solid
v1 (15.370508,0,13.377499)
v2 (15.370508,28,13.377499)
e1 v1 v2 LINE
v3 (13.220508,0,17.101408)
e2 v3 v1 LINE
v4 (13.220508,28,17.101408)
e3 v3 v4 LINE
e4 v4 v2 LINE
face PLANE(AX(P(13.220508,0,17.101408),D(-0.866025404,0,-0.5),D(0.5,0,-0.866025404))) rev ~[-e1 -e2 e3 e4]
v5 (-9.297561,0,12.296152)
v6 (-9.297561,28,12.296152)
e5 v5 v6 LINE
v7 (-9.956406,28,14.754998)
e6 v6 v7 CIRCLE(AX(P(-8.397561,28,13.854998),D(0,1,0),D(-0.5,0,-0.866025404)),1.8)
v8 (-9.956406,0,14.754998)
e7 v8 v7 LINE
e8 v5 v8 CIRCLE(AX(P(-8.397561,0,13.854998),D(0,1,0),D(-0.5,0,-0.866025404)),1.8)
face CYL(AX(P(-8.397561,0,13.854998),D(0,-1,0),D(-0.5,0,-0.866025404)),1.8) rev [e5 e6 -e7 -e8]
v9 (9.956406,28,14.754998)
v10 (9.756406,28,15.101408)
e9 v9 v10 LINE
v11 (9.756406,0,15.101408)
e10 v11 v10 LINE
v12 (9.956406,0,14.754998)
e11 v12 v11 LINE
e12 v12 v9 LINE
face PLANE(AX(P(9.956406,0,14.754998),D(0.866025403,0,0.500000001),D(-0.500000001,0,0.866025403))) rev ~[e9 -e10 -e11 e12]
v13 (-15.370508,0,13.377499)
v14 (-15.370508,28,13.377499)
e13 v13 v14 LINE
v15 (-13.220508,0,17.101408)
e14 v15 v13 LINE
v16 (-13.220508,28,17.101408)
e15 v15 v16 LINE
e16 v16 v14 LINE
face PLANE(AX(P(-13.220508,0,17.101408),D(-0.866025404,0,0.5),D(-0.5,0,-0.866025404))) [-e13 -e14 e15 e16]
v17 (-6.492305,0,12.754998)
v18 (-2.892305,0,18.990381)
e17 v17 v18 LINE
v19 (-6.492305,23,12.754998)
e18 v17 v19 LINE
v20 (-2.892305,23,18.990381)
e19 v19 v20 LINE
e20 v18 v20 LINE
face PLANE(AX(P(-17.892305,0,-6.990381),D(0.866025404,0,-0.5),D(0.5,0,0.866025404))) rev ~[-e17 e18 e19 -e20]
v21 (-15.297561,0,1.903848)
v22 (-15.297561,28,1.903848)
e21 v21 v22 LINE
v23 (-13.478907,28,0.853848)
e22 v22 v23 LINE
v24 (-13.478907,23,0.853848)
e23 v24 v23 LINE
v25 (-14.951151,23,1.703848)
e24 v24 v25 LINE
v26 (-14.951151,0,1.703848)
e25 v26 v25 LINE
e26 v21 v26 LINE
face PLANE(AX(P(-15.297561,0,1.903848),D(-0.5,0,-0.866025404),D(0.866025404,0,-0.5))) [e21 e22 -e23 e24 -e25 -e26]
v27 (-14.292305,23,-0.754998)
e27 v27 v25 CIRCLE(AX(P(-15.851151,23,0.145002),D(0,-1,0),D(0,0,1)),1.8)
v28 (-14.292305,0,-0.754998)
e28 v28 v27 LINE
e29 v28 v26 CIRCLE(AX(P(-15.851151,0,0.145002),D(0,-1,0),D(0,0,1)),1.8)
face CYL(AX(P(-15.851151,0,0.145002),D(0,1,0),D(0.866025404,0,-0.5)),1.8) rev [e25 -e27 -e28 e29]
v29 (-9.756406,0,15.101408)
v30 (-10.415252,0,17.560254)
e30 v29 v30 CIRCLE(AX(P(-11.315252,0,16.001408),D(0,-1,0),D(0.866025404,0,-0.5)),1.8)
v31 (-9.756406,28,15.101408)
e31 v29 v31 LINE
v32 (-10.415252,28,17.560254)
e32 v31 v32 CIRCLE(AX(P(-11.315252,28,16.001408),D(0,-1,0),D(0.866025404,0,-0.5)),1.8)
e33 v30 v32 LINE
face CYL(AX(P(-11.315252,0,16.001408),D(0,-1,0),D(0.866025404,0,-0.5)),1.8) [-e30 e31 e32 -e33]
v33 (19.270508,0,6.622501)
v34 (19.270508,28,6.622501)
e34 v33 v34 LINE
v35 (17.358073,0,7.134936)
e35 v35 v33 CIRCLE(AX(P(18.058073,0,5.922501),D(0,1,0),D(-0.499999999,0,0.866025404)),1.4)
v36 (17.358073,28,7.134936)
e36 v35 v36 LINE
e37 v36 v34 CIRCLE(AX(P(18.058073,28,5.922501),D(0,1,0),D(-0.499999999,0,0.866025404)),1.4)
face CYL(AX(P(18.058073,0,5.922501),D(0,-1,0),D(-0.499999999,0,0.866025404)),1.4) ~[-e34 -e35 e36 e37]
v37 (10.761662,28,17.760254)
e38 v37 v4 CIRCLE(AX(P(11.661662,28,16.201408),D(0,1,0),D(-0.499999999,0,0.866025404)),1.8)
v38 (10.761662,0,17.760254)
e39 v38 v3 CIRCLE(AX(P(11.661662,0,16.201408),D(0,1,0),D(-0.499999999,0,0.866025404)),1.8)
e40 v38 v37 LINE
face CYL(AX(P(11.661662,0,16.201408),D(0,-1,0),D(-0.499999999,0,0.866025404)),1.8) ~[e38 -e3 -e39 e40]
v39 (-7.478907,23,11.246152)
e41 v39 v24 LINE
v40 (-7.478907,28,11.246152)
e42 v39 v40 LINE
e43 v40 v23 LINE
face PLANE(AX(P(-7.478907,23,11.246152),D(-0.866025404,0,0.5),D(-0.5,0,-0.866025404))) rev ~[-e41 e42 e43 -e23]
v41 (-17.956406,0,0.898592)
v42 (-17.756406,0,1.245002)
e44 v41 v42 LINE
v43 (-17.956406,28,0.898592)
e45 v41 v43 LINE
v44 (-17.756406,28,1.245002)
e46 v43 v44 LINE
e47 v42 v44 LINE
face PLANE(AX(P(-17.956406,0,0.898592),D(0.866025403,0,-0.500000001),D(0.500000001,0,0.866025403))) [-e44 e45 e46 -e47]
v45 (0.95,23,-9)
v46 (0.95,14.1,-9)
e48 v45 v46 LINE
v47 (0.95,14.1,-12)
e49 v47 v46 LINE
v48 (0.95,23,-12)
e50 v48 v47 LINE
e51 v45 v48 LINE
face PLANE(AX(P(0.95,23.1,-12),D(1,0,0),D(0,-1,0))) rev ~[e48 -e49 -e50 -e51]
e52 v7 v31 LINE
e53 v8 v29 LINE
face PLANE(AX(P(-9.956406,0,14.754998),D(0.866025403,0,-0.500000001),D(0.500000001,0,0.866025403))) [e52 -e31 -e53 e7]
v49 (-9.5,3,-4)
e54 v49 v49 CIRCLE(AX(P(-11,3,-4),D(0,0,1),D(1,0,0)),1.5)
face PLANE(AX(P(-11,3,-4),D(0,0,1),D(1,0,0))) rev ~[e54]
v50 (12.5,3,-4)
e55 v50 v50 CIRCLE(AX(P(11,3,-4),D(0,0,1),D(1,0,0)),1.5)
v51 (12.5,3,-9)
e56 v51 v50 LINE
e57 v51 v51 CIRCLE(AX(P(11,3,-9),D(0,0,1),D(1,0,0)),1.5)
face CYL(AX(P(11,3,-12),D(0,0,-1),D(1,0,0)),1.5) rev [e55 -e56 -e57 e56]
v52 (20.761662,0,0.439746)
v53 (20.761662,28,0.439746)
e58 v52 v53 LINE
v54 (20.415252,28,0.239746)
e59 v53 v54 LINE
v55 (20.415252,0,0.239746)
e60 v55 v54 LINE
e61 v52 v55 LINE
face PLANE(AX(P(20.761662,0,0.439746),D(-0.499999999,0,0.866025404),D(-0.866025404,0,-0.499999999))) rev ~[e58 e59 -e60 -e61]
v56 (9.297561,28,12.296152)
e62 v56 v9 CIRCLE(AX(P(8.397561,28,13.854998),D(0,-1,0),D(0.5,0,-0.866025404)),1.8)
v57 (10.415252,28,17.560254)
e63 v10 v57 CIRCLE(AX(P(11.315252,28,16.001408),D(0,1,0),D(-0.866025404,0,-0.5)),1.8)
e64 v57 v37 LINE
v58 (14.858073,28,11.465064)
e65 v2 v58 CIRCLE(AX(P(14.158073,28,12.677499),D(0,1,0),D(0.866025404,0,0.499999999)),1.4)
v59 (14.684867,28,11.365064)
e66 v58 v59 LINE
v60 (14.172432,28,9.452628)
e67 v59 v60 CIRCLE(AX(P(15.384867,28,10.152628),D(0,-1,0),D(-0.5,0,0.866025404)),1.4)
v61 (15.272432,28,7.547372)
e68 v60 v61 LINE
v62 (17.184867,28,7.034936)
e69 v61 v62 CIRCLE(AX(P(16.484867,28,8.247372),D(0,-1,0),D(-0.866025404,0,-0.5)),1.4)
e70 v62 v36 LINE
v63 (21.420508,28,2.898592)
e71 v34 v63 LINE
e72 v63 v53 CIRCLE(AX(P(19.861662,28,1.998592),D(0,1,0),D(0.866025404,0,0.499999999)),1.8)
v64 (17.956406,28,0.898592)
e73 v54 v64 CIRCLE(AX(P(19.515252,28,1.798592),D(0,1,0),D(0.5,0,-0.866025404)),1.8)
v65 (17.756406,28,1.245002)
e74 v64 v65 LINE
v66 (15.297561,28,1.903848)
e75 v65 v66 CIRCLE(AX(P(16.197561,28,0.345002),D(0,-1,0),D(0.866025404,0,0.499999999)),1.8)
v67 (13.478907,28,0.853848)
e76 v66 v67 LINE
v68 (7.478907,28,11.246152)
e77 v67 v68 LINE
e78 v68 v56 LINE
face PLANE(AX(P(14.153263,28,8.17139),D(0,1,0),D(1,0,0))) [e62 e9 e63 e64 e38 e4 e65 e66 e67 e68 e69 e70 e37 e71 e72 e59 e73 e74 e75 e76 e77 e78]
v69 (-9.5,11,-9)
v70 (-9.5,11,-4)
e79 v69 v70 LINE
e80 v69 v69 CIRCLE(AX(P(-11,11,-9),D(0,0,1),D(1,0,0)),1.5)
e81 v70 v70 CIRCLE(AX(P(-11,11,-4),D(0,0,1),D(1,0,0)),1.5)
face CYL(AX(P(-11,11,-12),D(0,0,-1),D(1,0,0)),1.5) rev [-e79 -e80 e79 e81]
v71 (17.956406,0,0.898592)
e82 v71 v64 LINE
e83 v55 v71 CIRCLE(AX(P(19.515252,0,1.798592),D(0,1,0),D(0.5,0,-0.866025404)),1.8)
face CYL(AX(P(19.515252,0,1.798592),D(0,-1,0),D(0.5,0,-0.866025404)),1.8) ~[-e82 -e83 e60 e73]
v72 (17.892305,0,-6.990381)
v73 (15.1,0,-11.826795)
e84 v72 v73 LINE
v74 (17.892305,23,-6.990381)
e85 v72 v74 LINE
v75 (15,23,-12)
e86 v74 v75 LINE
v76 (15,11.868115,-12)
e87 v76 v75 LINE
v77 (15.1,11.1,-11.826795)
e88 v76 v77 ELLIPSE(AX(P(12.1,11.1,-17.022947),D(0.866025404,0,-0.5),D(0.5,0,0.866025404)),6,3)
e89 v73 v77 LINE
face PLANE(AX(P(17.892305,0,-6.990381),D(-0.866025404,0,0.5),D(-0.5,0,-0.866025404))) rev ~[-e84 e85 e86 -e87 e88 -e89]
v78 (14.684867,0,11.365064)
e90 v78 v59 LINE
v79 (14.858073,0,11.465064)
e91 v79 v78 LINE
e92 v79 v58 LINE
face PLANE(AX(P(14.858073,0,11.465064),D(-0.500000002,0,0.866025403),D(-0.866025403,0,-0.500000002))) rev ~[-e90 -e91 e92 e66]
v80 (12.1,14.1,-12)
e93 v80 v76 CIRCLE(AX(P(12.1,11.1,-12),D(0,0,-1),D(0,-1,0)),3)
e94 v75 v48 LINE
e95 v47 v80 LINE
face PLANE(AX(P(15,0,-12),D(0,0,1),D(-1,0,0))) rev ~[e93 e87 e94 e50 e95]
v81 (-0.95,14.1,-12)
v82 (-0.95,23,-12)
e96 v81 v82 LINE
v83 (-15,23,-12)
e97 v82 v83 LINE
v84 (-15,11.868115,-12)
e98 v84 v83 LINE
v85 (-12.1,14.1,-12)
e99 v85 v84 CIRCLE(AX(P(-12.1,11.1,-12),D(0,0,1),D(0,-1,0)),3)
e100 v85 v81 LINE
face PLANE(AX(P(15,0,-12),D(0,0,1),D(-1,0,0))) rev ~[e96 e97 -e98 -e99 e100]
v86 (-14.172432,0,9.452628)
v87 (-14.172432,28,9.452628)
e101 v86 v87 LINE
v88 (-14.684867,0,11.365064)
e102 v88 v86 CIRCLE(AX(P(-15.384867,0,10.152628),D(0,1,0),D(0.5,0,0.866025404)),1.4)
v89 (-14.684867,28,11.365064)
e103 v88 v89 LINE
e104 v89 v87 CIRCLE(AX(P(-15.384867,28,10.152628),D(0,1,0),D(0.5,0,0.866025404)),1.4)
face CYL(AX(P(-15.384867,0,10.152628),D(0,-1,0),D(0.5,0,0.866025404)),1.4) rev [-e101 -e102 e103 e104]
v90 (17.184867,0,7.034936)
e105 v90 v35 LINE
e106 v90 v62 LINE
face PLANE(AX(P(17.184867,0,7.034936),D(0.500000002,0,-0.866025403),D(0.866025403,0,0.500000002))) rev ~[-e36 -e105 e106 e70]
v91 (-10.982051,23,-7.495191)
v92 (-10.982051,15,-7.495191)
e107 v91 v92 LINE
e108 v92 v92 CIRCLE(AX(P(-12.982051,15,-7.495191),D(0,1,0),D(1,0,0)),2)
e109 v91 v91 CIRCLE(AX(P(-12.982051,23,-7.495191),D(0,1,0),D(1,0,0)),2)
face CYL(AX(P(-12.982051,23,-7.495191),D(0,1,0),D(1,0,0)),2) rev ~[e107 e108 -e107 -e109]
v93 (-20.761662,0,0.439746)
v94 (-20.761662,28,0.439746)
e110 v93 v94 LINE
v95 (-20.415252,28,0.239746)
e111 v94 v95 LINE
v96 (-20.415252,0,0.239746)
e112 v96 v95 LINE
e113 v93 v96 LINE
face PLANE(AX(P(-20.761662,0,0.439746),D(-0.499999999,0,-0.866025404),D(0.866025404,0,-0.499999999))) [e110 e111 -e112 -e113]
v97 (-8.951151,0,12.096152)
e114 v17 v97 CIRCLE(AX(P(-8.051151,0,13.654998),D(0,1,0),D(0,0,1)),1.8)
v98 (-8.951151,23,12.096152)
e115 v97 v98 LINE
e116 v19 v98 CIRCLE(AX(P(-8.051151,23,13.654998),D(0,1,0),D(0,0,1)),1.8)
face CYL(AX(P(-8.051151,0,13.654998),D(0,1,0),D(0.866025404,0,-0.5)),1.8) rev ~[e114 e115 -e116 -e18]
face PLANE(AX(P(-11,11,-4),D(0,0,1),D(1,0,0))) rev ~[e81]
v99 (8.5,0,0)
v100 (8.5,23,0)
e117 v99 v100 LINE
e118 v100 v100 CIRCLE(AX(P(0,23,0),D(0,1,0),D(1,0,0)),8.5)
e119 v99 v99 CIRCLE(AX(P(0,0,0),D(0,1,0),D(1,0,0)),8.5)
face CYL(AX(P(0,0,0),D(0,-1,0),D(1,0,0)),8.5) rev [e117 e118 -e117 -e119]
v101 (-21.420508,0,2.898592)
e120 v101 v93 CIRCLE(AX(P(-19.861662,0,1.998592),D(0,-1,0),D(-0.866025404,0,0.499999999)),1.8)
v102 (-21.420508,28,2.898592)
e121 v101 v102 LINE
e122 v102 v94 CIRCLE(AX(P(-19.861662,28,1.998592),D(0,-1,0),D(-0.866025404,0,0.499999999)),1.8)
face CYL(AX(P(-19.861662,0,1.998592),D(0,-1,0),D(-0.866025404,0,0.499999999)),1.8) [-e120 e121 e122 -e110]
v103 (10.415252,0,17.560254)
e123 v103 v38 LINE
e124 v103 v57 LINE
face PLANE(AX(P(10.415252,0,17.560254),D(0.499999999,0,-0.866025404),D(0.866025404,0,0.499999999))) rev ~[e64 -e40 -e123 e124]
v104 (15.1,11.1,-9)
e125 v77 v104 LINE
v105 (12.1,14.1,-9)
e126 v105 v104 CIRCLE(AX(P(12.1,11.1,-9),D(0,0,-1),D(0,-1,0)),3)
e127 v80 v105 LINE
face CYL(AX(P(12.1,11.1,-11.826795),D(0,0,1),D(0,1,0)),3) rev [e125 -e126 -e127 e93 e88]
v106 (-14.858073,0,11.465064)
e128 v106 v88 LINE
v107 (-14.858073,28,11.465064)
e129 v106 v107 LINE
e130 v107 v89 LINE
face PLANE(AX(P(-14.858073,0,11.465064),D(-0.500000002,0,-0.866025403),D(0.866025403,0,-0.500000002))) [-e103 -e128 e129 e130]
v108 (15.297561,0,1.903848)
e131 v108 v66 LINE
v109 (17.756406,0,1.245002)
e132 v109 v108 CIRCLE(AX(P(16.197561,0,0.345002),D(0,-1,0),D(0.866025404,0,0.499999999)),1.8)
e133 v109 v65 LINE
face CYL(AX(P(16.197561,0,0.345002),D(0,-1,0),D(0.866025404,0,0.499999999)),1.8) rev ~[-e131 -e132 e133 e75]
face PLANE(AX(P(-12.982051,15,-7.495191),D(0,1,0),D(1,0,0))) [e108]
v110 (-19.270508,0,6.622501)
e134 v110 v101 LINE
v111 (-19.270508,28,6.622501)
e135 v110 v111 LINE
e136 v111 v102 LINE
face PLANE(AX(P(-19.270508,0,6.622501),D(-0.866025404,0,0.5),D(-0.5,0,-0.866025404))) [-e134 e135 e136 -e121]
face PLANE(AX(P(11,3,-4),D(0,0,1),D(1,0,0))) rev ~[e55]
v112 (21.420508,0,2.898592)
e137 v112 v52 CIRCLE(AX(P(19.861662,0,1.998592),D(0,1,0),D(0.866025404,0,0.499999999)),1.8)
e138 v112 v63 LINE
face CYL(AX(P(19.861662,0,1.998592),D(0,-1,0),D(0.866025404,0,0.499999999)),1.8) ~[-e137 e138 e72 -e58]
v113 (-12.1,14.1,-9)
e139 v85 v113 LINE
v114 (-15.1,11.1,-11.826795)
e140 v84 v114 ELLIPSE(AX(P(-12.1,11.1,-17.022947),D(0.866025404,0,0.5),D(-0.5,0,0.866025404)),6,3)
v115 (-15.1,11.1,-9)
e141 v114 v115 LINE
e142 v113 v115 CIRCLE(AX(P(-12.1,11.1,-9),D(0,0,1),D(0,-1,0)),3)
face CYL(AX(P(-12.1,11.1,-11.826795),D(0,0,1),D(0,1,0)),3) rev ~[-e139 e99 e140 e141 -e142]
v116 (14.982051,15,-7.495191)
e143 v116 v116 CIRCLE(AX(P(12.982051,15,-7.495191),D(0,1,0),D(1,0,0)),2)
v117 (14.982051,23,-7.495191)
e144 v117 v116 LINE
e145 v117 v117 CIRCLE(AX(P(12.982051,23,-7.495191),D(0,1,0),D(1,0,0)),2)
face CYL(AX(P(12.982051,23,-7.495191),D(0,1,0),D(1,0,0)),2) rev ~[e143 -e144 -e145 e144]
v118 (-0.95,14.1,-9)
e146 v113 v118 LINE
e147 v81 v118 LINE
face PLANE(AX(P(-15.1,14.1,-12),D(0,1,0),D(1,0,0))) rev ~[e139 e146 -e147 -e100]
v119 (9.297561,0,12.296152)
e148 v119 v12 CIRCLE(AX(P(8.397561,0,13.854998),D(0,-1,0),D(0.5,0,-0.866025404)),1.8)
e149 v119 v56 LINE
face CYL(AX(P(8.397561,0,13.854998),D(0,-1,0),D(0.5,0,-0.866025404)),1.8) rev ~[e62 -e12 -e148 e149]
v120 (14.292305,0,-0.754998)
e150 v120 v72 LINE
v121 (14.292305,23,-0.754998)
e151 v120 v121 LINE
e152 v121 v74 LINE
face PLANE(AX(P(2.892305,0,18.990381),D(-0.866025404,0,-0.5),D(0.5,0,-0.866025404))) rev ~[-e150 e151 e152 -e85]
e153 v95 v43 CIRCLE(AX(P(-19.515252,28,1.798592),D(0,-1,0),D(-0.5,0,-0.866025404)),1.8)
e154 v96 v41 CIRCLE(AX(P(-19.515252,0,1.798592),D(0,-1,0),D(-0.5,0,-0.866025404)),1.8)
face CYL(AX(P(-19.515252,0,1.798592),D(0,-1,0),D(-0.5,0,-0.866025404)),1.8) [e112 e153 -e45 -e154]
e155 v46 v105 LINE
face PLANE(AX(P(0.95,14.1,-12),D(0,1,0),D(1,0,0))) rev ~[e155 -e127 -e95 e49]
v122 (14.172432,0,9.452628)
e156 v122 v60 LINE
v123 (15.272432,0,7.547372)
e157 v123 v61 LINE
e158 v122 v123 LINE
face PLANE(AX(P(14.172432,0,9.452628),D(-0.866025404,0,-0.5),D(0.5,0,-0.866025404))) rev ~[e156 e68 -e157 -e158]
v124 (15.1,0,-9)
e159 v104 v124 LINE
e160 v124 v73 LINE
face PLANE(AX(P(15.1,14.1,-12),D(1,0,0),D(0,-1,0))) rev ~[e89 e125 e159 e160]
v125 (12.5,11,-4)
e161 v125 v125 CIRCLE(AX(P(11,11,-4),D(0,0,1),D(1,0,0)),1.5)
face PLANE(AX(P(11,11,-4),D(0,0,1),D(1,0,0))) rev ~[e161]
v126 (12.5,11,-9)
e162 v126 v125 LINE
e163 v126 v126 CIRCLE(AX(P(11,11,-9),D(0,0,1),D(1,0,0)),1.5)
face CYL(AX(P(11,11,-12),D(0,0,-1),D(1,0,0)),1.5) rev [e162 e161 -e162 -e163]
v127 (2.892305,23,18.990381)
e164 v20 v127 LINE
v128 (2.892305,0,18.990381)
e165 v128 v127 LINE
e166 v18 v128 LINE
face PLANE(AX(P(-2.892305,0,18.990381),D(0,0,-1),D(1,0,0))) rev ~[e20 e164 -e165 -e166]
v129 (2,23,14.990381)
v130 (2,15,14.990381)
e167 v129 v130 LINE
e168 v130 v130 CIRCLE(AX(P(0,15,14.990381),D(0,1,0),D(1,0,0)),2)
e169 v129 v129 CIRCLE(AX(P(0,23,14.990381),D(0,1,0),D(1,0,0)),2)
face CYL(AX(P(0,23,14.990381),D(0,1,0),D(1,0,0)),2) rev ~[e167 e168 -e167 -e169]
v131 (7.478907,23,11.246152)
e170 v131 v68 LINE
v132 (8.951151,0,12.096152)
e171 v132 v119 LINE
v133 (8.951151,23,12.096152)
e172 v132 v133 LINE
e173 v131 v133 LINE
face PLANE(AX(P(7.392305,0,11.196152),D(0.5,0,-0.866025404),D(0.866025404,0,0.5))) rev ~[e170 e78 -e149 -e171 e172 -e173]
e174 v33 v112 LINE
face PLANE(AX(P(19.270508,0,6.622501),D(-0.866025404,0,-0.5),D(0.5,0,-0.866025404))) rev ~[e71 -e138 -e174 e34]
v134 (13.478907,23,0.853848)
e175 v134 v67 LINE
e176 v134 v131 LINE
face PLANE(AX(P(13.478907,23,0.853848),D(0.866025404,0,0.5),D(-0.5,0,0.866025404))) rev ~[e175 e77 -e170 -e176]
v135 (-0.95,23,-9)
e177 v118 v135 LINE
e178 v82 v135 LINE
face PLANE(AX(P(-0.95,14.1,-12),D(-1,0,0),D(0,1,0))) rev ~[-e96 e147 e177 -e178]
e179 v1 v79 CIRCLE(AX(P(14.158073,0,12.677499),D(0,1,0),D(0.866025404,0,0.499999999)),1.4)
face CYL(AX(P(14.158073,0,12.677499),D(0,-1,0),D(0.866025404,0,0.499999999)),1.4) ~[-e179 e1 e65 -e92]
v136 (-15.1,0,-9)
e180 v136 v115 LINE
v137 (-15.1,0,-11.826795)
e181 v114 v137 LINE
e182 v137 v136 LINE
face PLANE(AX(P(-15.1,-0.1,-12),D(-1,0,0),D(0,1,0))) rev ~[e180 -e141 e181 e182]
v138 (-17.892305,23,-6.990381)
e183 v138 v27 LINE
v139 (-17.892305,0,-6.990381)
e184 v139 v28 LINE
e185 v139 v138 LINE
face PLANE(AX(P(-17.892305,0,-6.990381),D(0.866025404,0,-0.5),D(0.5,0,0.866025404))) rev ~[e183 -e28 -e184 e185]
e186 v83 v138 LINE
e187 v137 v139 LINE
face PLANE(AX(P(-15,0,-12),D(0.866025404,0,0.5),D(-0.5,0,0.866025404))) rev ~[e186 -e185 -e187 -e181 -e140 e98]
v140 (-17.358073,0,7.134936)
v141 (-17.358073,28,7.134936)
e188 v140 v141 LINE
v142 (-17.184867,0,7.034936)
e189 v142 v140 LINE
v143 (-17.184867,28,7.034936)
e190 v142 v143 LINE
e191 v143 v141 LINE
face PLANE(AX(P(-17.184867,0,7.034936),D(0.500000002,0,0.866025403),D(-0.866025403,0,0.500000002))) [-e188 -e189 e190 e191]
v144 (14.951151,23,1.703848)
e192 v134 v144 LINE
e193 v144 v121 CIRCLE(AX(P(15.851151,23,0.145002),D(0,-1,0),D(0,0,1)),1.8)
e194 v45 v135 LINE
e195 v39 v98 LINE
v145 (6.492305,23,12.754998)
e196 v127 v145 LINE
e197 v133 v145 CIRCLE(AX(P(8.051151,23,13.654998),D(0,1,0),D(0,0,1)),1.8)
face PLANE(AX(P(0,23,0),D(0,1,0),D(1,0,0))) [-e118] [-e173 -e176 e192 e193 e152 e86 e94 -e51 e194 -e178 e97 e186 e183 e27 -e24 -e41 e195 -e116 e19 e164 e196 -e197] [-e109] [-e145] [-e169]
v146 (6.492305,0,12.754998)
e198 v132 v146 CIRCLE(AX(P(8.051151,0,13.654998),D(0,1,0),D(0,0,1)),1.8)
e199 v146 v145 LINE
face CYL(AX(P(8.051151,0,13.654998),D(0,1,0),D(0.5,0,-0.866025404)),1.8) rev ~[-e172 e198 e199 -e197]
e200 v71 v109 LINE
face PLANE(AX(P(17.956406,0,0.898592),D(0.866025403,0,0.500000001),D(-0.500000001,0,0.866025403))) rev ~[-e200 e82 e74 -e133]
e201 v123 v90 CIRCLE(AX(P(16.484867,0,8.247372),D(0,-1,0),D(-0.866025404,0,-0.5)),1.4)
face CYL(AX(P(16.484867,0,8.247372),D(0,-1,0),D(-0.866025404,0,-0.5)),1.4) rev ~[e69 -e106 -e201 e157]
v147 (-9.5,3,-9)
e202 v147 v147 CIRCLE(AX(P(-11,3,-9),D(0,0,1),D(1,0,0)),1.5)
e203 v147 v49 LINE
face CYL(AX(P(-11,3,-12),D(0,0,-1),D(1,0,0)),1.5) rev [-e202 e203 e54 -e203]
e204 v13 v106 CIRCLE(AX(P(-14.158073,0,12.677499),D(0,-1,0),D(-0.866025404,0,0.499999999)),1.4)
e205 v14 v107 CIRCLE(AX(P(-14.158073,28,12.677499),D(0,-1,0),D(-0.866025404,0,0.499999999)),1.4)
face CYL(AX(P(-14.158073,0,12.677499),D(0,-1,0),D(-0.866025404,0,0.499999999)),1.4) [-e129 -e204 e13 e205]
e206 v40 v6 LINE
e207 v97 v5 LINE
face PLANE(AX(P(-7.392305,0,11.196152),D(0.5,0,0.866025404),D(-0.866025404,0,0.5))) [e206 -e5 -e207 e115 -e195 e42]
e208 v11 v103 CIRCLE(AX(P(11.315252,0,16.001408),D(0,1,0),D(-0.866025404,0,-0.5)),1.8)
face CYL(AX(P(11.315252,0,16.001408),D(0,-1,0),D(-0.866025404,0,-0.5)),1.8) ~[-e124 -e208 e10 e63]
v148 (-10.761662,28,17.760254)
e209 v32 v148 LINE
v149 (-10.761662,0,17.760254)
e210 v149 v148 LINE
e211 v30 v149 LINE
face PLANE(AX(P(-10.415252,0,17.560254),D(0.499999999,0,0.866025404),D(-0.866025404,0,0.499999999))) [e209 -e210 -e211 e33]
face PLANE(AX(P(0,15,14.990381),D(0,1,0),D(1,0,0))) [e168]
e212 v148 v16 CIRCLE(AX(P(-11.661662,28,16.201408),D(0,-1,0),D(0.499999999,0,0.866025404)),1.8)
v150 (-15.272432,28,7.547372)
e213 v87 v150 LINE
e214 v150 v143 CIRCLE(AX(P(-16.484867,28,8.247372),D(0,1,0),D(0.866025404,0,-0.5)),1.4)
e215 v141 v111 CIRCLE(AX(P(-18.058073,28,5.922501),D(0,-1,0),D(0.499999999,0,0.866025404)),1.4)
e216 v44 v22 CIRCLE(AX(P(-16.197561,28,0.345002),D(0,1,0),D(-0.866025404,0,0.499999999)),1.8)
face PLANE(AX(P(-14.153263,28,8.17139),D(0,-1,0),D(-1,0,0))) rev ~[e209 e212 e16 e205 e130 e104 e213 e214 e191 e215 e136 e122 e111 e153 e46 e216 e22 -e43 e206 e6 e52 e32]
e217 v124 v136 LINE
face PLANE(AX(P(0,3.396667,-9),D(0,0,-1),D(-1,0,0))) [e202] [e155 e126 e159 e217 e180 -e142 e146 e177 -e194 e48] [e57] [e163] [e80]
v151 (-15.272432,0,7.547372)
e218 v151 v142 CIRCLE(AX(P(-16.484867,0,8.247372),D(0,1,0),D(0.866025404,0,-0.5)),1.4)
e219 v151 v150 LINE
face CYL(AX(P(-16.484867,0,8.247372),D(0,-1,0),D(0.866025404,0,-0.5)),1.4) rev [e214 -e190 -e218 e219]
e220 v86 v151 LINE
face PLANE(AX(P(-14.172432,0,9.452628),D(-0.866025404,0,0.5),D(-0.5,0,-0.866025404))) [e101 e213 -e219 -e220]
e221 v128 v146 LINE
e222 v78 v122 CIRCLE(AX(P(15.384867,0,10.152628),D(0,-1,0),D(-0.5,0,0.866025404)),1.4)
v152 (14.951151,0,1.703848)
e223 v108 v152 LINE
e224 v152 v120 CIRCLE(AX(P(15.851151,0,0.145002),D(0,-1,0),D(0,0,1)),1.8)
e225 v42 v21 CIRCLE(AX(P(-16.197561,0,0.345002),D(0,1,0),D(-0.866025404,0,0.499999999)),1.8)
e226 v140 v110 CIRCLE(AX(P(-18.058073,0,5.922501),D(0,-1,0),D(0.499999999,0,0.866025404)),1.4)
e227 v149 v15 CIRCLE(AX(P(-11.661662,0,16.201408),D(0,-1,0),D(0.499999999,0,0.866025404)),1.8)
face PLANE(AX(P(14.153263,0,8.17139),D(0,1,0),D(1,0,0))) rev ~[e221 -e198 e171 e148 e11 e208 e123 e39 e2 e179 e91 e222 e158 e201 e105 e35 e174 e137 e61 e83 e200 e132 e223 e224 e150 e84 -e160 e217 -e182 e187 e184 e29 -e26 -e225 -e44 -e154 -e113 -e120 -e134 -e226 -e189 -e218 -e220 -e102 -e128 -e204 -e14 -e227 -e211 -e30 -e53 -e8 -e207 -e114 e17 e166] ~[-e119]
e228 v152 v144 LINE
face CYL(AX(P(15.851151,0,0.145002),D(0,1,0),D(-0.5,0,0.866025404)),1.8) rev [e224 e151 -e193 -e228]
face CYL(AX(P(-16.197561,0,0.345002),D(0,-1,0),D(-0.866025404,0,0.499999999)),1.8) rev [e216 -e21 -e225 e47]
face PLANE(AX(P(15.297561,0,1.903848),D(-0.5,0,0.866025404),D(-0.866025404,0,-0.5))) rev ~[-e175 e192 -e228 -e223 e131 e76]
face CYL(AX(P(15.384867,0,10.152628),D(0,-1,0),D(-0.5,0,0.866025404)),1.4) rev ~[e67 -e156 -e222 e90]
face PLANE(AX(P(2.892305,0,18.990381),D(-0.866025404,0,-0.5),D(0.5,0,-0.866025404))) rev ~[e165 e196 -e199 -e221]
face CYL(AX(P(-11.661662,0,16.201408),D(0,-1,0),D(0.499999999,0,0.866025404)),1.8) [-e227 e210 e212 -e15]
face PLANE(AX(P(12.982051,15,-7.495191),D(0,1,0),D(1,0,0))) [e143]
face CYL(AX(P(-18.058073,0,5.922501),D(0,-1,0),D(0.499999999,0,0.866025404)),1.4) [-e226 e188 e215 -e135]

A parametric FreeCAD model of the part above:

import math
import FreeCAD as App
import Part
import Sketcher
from FreeCAD import Vector
Q = App.Units.Quantity


def edges_at(feature, points):
    """Names of the edges that pass closest to the given points."""
    edges = feature.Shape.Edges
    near = lambda p: min(range(len(edges)), key=lambda i: edges[i].distToShape(Part.Vertex(*p))[0])
    return sorted({f"Edge{near(p) + 1}" for p in points})

doc = App.newDocument("Part")
body = doc.addObject("PartDesign::Body", "Body")

sketch1 = body.newObject("Sketcher::SketchObject", "Sketch")
sketch1.AttachmentSupport = (doc.getObject("XZ_Plane"), [""])
sketch1.MapMode = "FlatFace"
sketch1.addGeometry(Part.LineSegment(Vector(15, -12, 0), Vector(-15, -12, 0)), False)
sketch1.addGeometry(Part.LineSegment(Vector(-15, -12, 0), Vector(-17.892305, -6.990381, 0)), False)
sketch1.addGeometry(Part.LineSegment(Vector(-17.892305, -6.990381, 0), Vector(-2.892305, 18.990381, 0)), False)
sketch1.addGeometry(Part.LineSegment(Vector(-2.892305, 18.990381, 0), Vector(2.892305, 18.990381, 0)), False)
sketch1.addGeometry(Part.LineSegment(Vector(2.892305, 18.990381, 0), Vector(17.892305, -6.990381, 0)), False)
sketch1.addGeometry(Part.LineSegment(Vector(17.892305, -6.990381, 0), Vector(15, -12, 0)), False)
sketch1.addGeometry(Part.Circle(Vector(0, 0, 0), Vector(0, 0, 1), 8.5), False)
sketch1.addConstraint(Sketcher.Constraint("Coincident", 0, 2, 1, 1))
sketch1.addConstraint(Sketcher.Constraint("Coincident", 1, 2, 2, 1))
sketch1.addConstraint(Sketcher.Constraint("Coincident", 2, 2, 3, 1))
sketch1.addConstraint(Sketcher.Constraint("Coincident", 3, 2, 4, 1))
sketch1.addConstraint(Sketcher.Constraint("Coincident", 4, 2, 5, 1))
sketch1.addConstraint(Sketcher.Constraint("Coincident", 5, 2, 0, 1))
sketch1.addConstraint(Sketcher.Constraint("Horizontal", 0))
sketch1.addConstraint(Sketcher.Constraint("Horizontal", 3))
sketch1.addConstraint(Sketcher.Constraint("Coincident", 6, 3, -1, 1))
sketch1.addConstraint(Sketcher.Constraint("Symmetric", 1, 2, 4, 2, -2))
sketch1.addConstraint(Sketcher.Constraint("Parallel", 1, 4))
sketch1.addConstraint(Sketcher.Constraint("Parallel", 2, 5))
sketch1.addConstraint(Sketcher.Constraint("Equal", 2, 4))
sketch1.addConstraint(Sketcher.Constraint("Diameter", 6, Q("17 mm")))
sketch1.addConstraint(Sketcher.Constraint("DistanceX", 0, 2, 0, 1, Q("30 mm")))
sketch1.addConstraint(Sketcher.Constraint("Angle", 1, Q("120 deg")))
sketch1.addConstraint(Sketcher.Constraint("Distance", 2, Q("30 mm")))
sketch1.addConstraint(Sketcher.Constraint("DistanceY", 0, 2, -1, 1, Q("12 mm")))
sketch1.addConstraint(Sketcher.Constraint("DistanceX", 3, 1, 3, 2, Q("5.78461 mm")))
pad1 = body.newObject("PartDesign::Pad", "Pad")
pad1.Profile = sketch1
pad1.Length = 23
pad1.Reversed = True

sketch2 = body.newObject("Sketcher::SketchObject", "Sketch001")
sketch2.AttachmentSupport = (doc.getObject("XZ_Plane"), [""])
sketch2.MapMode = "FlatFace"
sketch2.AttachmentOffset = App.Placement(Vector(0, 0, -23), App.Rotation())
sketch2.addGeometry(Part.Circle(Vector(-12.982051, -7.495191, 0), Vector(0, 0, 1), 2), False)
sketch2.addGeometry(Part.Circle(Vector(12.982051, -7.495191, 0), Vector(0, 0, 1), 2), False)
sketch2.addGeometry(Part.Circle(Vector(0, 14.990381, 0), Vector(0, 0, 1), 2), False)
sketch2.addConstraint(Sketcher.Constraint("Equal", 0, 1))
sketch2.addConstraint(Sketcher.Constraint("Equal", 1, 2))
sketch2.addConstraint(Sketcher.Constraint("Symmetric", 0, 3, 1, 3, -2))
sketch2.addConstraint(Sketcher.Constraint("PointOnObject", 2, 3, -2))
sketch2.addConstraint(Sketcher.Constraint("Diameter", 0, Q("4 mm")))
sketch2.addConstraint(Sketcher.Constraint("DistanceX", 0, 3, 1, 3, Q("25.964102 mm")))
sketch2.addConstraint(Sketcher.Constraint("DistanceY", 0, 3, -1, 1, Q("7.495191 mm")))
sketch2.addConstraint(Sketcher.Constraint("DistanceY", -1, 1, 2, 3, Q("14.990381 mm")))
pocket1 = body.newObject("PartDesign::Pocket", "Pocket")
pocket1.Profile = sketch2
pocket1.Type = "TwoLengths"
pocket1.Length = 24
pocket1.Length2 = 8

sketch3 = body.newObject("Sketcher::SketchObject", "Sketch002")
sketch3.AttachmentSupport = (doc.getObject("XY_Plane"), [""])
sketch3.MapMode = "FlatFace"
sketch3.AttachmentOffset = App.Placement(Vector(0, 0, -12), App.Rotation())
sketch3.addGeometry(Part.Circle(Vector(-11, 11, 0), Vector(0, 0, 1), 1.5), False)
sketch3.addGeometry(Part.Circle(Vector(11, 11, 0), Vector(0, 0, 1), 1.5), False)
sketch3.addGeometry(Part.Circle(Vector(11, 3, 0), Vector(0, 0, 1), 1.5), False)
sketch3.addGeometry(Part.Circle(Vector(-11, 3, 0), Vector(0, 0, 1), 1.5), False)
sketch3.addConstraint(Sketcher.Constraint("Equal", 0, 1))
sketch3.addConstraint(Sketcher.Constraint("Equal", 1, 2))
sketch3.addConstraint(Sketcher.Constraint("Equal", 2, 3))
sketch3.addConstraint(Sketcher.Constraint("Symmetric", 0, 3, 1, 3, -2))
sketch3.addConstraint(Sketcher.Constraint("Symmetric", 2, 3, 3, 3, -2))
sketch3.addConstraint(Sketcher.Constraint("Vertical", 1, 3, 2, 3))
sketch3.addConstraint(Sketcher.Constraint("Diameter", 0, Q("3 mm")))
sketch3.addConstraint(Sketcher.Constraint("DistanceX", 0, 3, -1, 1, Q("11 mm")))
sketch3.addConstraint(Sketcher.Constraint("DistanceY", -1, 1, 0, 3, Q("11 mm")))
sketch3.addConstraint(Sketcher.Constraint("DistanceY", -1, 1, 2, 3, Q("3 mm")))
pocket2 = body.newObject("PartDesign::Pocket", "Pocket001")
pocket2.Profile = sketch3
pocket2.Length = 8
pocket2.Reversed = True

sketch4 = body.newObject("Sketcher::SketchObject", "Sketch003")
sketch4.AttachmentSupport = (doc.getObject("XZ_Plane"), [""])
sketch4.MapMode = "FlatFace"
sketch4.addGeometry(Part.LineSegment(Vector(13.220508, 17.101408, 0), Vector(15.370508, 13.377499, 0)), False)
sketch4.addGeometry(Part.ArcOfCircle(Part.Circle(Vector(14.158073, 12.677499, 0), Vector(0, 0, 1), 1.4), math.radians(-60), math.radians(30)), False)
sketch4.addGeometry(Part.LineSegment(Vector(14.858073, 11.465064, 0), Vector(14.684867, 11.365064, 0)), False)
sketch4.addGeometry(Part.ArcOfCircle(Part.Circle(Vector(15.384867, 10.152628, 0), Vector(0, 0, 1), 1.4), math.radians(120), math.radians(210)), False)
sketch4.addGeometry(Part.LineSegment(Vector(14.172432, 9.452628, 0), Vector(15.272432, 7.547372, 0)), False)
sketch4.addGeometry(Part.ArcOfCircle(Part.Circle(Vector(16.484867, 8.247372, 0), Vector(0, 0, 1), 1.4), math.radians(-150), math.radians(-60)), False)
sketch4.addGeometry(Part.LineSegment(Vector(17.184867, 7.034936, 0), Vector(17.358073, 7.134936, 0)), False)
sketch4.addGeometry(Part.ArcOfCircle(Part.Circle(Vector(18.058073, 5.922501, 0), Vector(0, 0, 1), 1.4), math.radians(30), math.radians(120)), False)
sketch4.addGeometry(Part.LineSegment(Vector(19.270508, 6.622501, 0), Vector(21.420508, 2.898592, 0)), False)
sketch4.addGeometry(Part.ArcOfCircle(Part.Circle(Vector(19.861662, 1.998592, 0), Vector(0, 0, 1), 1.8), math.radians(-60), math.radians(30)), False)
sketch4.addGeometry(Part.LineSegment(Vector(20.761662, 0.439746, 0), Vector(20.415252, 0.239746, 0)), False)
sketch4.addGeometry(Part.ArcOfCircle(Part.Circle(Vector(19.515252, 1.798592, 0), Vector(0, 0, 1), 1.8), math.radians(-150), math.radians(-60)), False)
sketch4.addGeometry(Part.LineSegment(Vector(17.956406, 0.898592, 0), Vector(17.756406, 1.245002, 0)), False)
sketch4.addGeometry(Part.ArcOfCircle(Part.Circle(Vector(16.197561, 0.345002, 0), Vector(0, 0, 1), 1.8), math.radians(30), math.radians(120)), False)
sketch4.addGeometry(Part.LineSegment(Vector(15.297561, 1.903848, 0), Vector(13.392305, 0.803848, 0)), False)
sketch4.addGeometry(Part.LineSegment(Vector(13.392305, 0.803848, 0), Vector(7.392305, 11.196152, 0)), False)
sketch4.addGeometry(Part.LineSegment(Vector(7.392305, 11.196152, 0), Vector(9.297561, 12.296152, 0)), False)
sketch4.addGeometry(Part.ArcOfCircle(Part.Circle(Vector(8.397561, 13.854998, 0), Vector(0, 0, 1), 1.8), math.radians(-60), math.radians(30)), False)
sketch4.addGeometry(Part.LineSegment(Vector(9.956406, 14.754998, 0), Vector(9.756406, 15.101408, 0)), False)
sketch4.addGeometry(Part.ArcOfCircle(Part.Circle(Vector(11.315252, 16.001408, 0), Vector(0, 0, 1), 1.8), math.radians(120), math.radians(210)), False)
sketch4.addGeometry(Part.LineSegment(Vector(10.415252, 17.560254, 0), Vector(10.761662, 17.760254, 0)), False)
sketch4.addGeometry(Part.ArcOfCircle(Part.Circle(Vector(11.661662, 16.201408, 0), Vector(0, 0, 1), 1.8), math.radians(30), math.radians(120)), False)
sketch4.addGeometry(Part.LineSegment(Vector(-21.420508, 2.898592, 0), Vector(-19.270508, 6.622501, 0)), False)
sketch4.addGeometry(Part.ArcOfCircle(Part.Circle(Vector(-18.058073, 5.922501, 0), Vector(0, 0, 1), 1.4), math.radians(60), math.radians(150)), False)
sketch4.addGeometry(Part.LineSegment(Vector(-17.358073, 7.134936, 0), Vector(-17.184867, 7.034936, 0)), False)
sketch4.addGeometry(Part.ArcOfCircle(Part.Circle(Vector(-16.484867, 8.247372, 0), Vector(0, 0, 1), 1.4), math.radians(-120), math.radians(-30)), False)
sketch4.addGeometry(Part.LineSegment(Vector(-15.272432, 7.547372, 0), Vector(-14.172432, 9.452628, 0)), False)
sketch4.addGeometry(Part.ArcOfCircle(Part.Circle(Vector(-15.384867, 10.152628, 0), Vector(0, 0, 1), 1.4), math.radians(-30), math.radians(60)), False)
sketch4.addGeometry(Part.LineSegment(Vector(-14.684867, 11.365064, 0), Vector(-14.858073, 11.465064, 0)), False)
sketch4.addGeometry(Part.ArcOfCircle(Part.Circle(Vector(-14.158073, 12.677499, 0), Vector(0, 0, 1), 1.4), math.radians(150), math.radians(240)), False)
sketch4.addGeometry(Part.LineSegment(Vector(-15.370508, 13.377499, 0), Vector(-13.220508, 17.101408, 0)), False)
sketch4.addGeometry(Part.ArcOfCircle(Part.Circle(Vector(-11.661662, 16.201408, 0), Vector(0, 0, 1), 1.8), math.radians(60), math.radians(150)), False)
sketch4.addGeometry(Part.LineSegment(Vector(-10.761662, 17.760254, 0), Vector(-10.415252, 17.560254, 0)), False)
sketch4.addGeometry(Part.ArcOfCircle(Part.Circle(Vector(-11.315252, 16.001408, 0), Vector(0, 0, 1), 1.8), math.radians(-30), math.radians(60)), False)
sketch4.addGeometry(Part.LineSegment(Vector(-9.756406, 15.101408, 0), Vector(-9.956406, 14.754998, 0)), False)
sketch4.addGeometry(Part.ArcOfCircle(Part.Circle(Vector(-8.397561, 13.854998, 0), Vector(0, 0, 1), 1.8), math.radians(150), math.radians(240)), False)
sketch4.addGeometry(Part.LineSegment(Vector(-9.297561, 12.296152, 0), Vector(-7.392305, 11.196152, 0)), False)
sketch4.addGeometry(Part.LineSegment(Vector(-7.392305, 11.196152, 0), Vector(-13.392305, 0.803848, 0)), False)
sketch4.addGeometry(Part.LineSegment(Vector(-13.392305, 0.803848, 0), Vector(-15.297561, 1.903848, 0)), False)
sketch4.addGeometry(Part.ArcOfCircle(Part.Circle(Vector(-16.197561, 0.345002, 0), Vector(0, 0, 1), 1.8), math.radians(60), math.radians(150)), False)
sketch4.addGeometry(Part.LineSegment(Vector(-17.756406, 1.245002, 0), Vector(-17.956406, 0.898592, 0)), False)
sketch4.addGeometry(Part.ArcOfCircle(Part.Circle(Vector(-19.515252, 1.798592, 0), Vector(0, 0, 1), 1.8), math.radians(-120), math.radians(-30)), False)
sketch4.addGeometry(Part.LineSegment(Vector(-20.415252, 0.239746, 0), Vector(-20.761662, 0.439746, 0)), False)
sketch4.addGeometry(Part.ArcOfCircle(Part.Circle(Vector(-19.861662, 1.998592, 0), Vector(0, 0, 1), 1.8), math.radians(150), math.radians(240)), False)
sketch4.addConstraint(Sketcher.Constraint("Tangent", 0, 2, 1, 2))
sketch4.addConstraint(Sketcher.Constraint("Tangent", 1, 1, 2, 1))
sketch4.addConstraint(Sketcher.Constraint("Tangent", 2, 2, 3, 1))
sketch4.addConstraint(Sketcher.Constraint("Tangent", 3, 2, 4, 1))
sketch4.addConstraint(Sketcher.Constraint("Tangent", 4, 2, 5, 1))
sketch4.addConstraint(Sketcher.Constraint("Tangent", 5, 2, 6, 1))
sketch4.addConstraint(Sketcher.Constraint("Tangent", 6, 2, 7, 2))
sketch4.addConstraint(Sketcher.Constraint("Tangent", 7, 1, 8, 1))
sketch4.addConstraint(Sketcher.Constraint("Tangent", 8, 2, 9, 2))
sketch4.addConstraint(Sketcher.Constraint("Tangent", 9, 1, 10, 1))
sketch4.addConstraint(Sketcher.Constraint("Tangent", 10, 2, 11, 2))
sketch4.addConstraint(Sketcher.Constraint("Tangent", 11, 1, 12, 1))
sketch4.addConstraint(Sketcher.Constraint("Tangent", 12, 2, 13, 1))
sketch4.addConstraint(Sketcher.Constraint("Tangent", 13, 2, 14, 1))
sketch4.addConstraint(Sketcher.Constraint("Coincident", 14, 2, 15, 1))
sketch4.addConstraint(Sketcher.Constraint("Coincident", 15, 2, 16, 1))
sketch4.addConstraint(Sketcher.Constraint("Tangent", 16, 2, 17, 1))
sketch4.addConstraint(Sketcher.Constraint("Tangent", 17, 2, 18, 1))
sketch4.addConstraint(Sketcher.Constraint("Tangent", 18, 2, 19, 2))
sketch4.addConstraint(Sketcher.Constraint("Tangent", 19, 1, 20, 1))
sketch4.addConstraint(Sketcher.Constraint("Tangent", 20, 2, 21, 2))
sketch4.addConstraint(Sketcher.Constraint("Tangent", 21, 1, 0, 1))
sketch4.addConstraint(Sketcher.Constraint("Tangent", 22, 2, 23, 2))
sketch4.addConstraint(Sketcher.Constraint("Tangent", 23, 1, 24, 1))
sketch4.addConstraint(Sketcher.Constraint("Tangent", 24, 2, 25, 1))
sketch4.addConstraint(Sketcher.Constraint("Tangent", 25, 2, 26, 1))
sketch4.addConstraint(Sketcher.Constraint("Tangent", 26, 2, 27, 1))
sketch4.addConstraint(Sketcher.Constraint("Tangent", 27, 2, 28, 1))
sketch4.addConstraint(Sketcher.Constraint("Tangent", 28, 2, 29, 2))
sketch4.addConstraint(Sketcher.Constraint("Tangent", 29, 1, 30, 1))
sketch4.addConstraint(Sketcher.Constraint("Tangent", 30, 2, 31, 2))
sketch4.addConstraint(Sketcher.Constraint("Tangent", 31, 1, 32, 1))
sketch4.addConstraint(Sketcher.Constraint("Tangent", 32, 2, 33, 2))
sketch4.addConstraint(Sketcher.Constraint("Tangent", 33, 1, 34, 1))
sketch4.addConstraint(Sketcher.Constraint("Tangent", 34, 2, 35, 1))
sketch4.addConstraint(Sketcher.Constraint("Tangent", 35, 2, 36, 1))
sketch4.addConstraint(Sketcher.Constraint("Coincident", 36, 2, 37, 1))
sketch4.addConstraint(Sketcher.Constraint("Coincident", 37, 2, 38, 1))
sketch4.addConstraint(Sketcher.Constraint("Tangent", 38, 2, 39, 1))
sketch4.addConstraint(Sketcher.Constraint("Tangent", 39, 2, 40, 1))
sketch4.addConstraint(Sketcher.Constraint("Tangent", 40, 2, 41, 2))
sketch4.addConstraint(Sketcher.Constraint("Tangent", 41, 1, 42, 1))
sketch4.addConstraint(Sketcher.Constraint("Tangent", 42, 2, 43, 2))
sketch4.addConstraint(Sketcher.Constraint("Tangent", 43, 1, 22, 1))
sketch4.addConstraint(Sketcher.Constraint("Equal", 1, 3))
sketch4.addConstraint(Sketcher.Constraint("Equal", 3, 5))
sketch4.addConstraint(Sketcher.Constraint("Equal", 5, 7))
sketch4.addConstraint(Sketcher.Constraint("Equal", 9, 11))
sketch4.addConstraint(Sketcher.Constraint("Equal", 11, 13))
sketch4.addConstraint(Sketcher.Constraint("Equal", 13, 17))
sketch4.addConstraint(Sketcher.Constraint("Equal", 17, 19))
sketch4.addConstraint(Sketcher.Constraint("Equal", 19, 21))
sketch4.addConstraint(Sketcher.Constraint("Equal", 7, 23))
sketch4.addConstraint(Sketcher.Constraint("Equal", 23, 25))
sketch4.addConstraint(Sketcher.Constraint("Equal", 25, 27))
sketch4.addConstraint(Sketcher.Constraint("Equal", 27, 29))
sketch4.addConstraint(Sketcher.Constraint("Equal", 21, 31))
sketch4.addConstraint(Sketcher.Constraint("Equal", 31, 33))
sketch4.addConstraint(Sketcher.Constraint("Equal", 33, 35))
sketch4.addConstraint(Sketcher.Constraint("Equal", 35, 39))
sketch4.addConstraint(Sketcher.Constraint("Equal", 39, 41))
sketch4.addConstraint(Sketcher.Constraint("Equal", 41, 43))
sketch4.addConstraint(Sketcher.Constraint("Symmetric", 7, 3, 23, 3, -2))
sketch4.addConstraint(Sketcher.Constraint("Symmetric", 5, 3, 25, 3, -2))
sketch4.addConstraint(Sketcher.Constraint("Symmetric", 3, 3, 27, 3, -2))
sketch4.addConstraint(Sketcher.Constraint("Symmetric", 1, 3, 29, 3, -2))
sketch4.addConstraint(Sketcher.Constraint("Symmetric", 21, 3, 31, 3, -2))
sketch4.addConstraint(Sketcher.Constraint("Symmetric", 19, 3, 33, 3, -2))
sketch4.addConstraint(Sketcher.Constraint("Symmetric", 17, 3, 35, 3, -2))
sketch4.addConstraint(Sketcher.Constraint("Symmetric", 13, 3, 39, 3, -2))
sketch4.addConstraint(Sketcher.Constraint("Symmetric", 11, 3, 41, 3, -2))
sketch4.addConstraint(Sketcher.Constraint("Symmetric", 9, 3, 43, 3, -2))
sketch4.addConstraint(Sketcher.Constraint("Symmetric", 15, 2, 36, 2, -2))
sketch4.addConstraint(Sketcher.Constraint("Symmetric", 14, 2, 37, 2, -2))
sketch4.addConstraint(Sketcher.Constraint("Perpendicular", 0, 2))
sketch4.addConstraint(Sketcher.Constraint("Perpendicular", 2, 4))
sketch4.addConstraint(Sketcher.Constraint("Perpendicular", 4, 6))
sketch4.addConstraint(Sketcher.Constraint("Perpendicular", 6, 8))
sketch4.addConstraint(Sketcher.Constraint("Perpendicular", 8, 10))
sketch4.addConstraint(Sketcher.Constraint("Perpendicular", 10, 12))
sketch4.addConstraint(Sketcher.Constraint("Perpendicular", 12, 14))
sketch4.addConstraint(Sketcher.Constraint("Perpendicular", 14, 15))
sketch4.addConstraint(Sketcher.Constraint("Perpendicular", 15, 16))
sketch4.addConstraint(Sketcher.Constraint("Perpendicular", 16, 18))
sketch4.addConstraint(Sketcher.Constraint("Perpendicular", 18, 20))
sketch4.addConstraint(Sketcher.Constraint("Equal", 2, 6))
sketch4.addConstraint(Sketcher.Constraint("Equal", 0, 8))
sketch4.addConstraint(Sketcher.Constraint("Equal", 10, 12))
sketch4.addConstraint(Sketcher.Constraint("Equal", 4, 14))
sketch4.addConstraint(Sketcher.Constraint("Equal", 14, 16))
sketch4.addConstraint(Sketcher.Constraint("Equal", 12, 18))
sketch4.addConstraint(Sketcher.Constraint("Radius", 1, Q("1.4 mm")))
sketch4.addConstraint(Sketcher.Constraint("Radius", 9, Q("1.8 mm")))
sketch4.addConstraint(Sketcher.Constraint("Angle", 0, Q("-60 deg")))
sketch4.addConstraint(Sketcher.Constraint("Distance", 15, Q("12 mm")))
sketch4.addConstraint(Sketcher.Constraint("Distance", 0, Q("4.3 mm")))
sketch4.addConstraint(Sketcher.Constraint("Distance", 2, Q("0.2 mm")))
sketch4.addConstraint(Sketcher.Constraint("Distance", 4, Q("2.2 mm")))
sketch4.addConstraint(Sketcher.Constraint("DistanceY", -1, 1, 13, 3, Q("0.345002 mm")))
sketch4.addConstraint(Sketcher.Constraint("DistanceX", -1, 1, 13, 3, Q("16.197561 mm")))
pad2 = body.newObject("PartDesign::Pad", "Pad001")
pad2.Profile = sketch4
pad2.Length = 28
pad2.Reversed = True
doc.recompute()

fillet = body.newObject("PartDesign::Fillet", "Fillet")
fillet.Base = (pad2, edges_at(pad2, [
    (-7.392, 11.5, 11.196),
    (7.392, 11.5, 11.196),
    (13.392, 11.5, 0.804),
    (-13.392, 11.5, 0.804),
]))
fillet.Radius = 1.8

sketch5 = body.newObject("Sketcher::SketchObject", "Sketch004")
sketch5.AttachmentSupport = (doc.getObject("XZ_Plane"), [""])
sketch5.MapMode = "FlatFace"
sketch5.AttachmentOffset = App.Placement(Vector(0, 0, -23), App.Rotation())
sketch5.addGeometry(Part.LineSegment(Vector(-7.392305, 11.196152, 0), Vector(-13.392305, 0.803848, 0)), False)
sketch5.addGeometry(Part.LineSegment(Vector(-13.392305, 0.803848, 0), Vector(-13.478907, 0.853848, 0)), False)
sketch5.addGeometry(Part.LineSegment(Vector(-13.478907, 0.853848, 0), Vector(-7.478907, 11.246152, 0)), False)
sketch5.addGeometry(Part.LineSegment(Vector(-7.478907, 11.246152, 0), Vector(-7.392305, 11.196152, 0)), False)
sketch5.addGeometry(Part.LineSegment(Vector(13.392305, 0.803848, 0), Vector(7.392305, 11.196152, 0)), False)
sketch5.addGeometry(Part.LineSegment(Vector(7.392305, 11.196152, 0), Vector(7.478907, 11.246152, 0)), False)
sketch5.addGeometry(Part.LineSegment(Vector(7.478907, 11.246152, 0), Vector(13.478907, 0.853848, 0)), False)
sketch5.addGeometry(Part.LineSegment(Vector(13.478907, 0.853848, 0), Vector(13.392305, 0.803848, 0)), False)
sketch5.addConstraint(Sketcher.Constraint("Coincident", 0, 2, 1, 1))
sketch5.addConstraint(Sketcher.Constraint("Coincident", 1, 2, 2, 1))
sketch5.addConstraint(Sketcher.Constraint("Coincident", 2, 2, 3, 1))
sketch5.addConstraint(Sketcher.Constraint("Coincident", 3, 2, 0, 1))
sketch5.addConstraint(Sketcher.Constraint("Coincident", 4, 2, 5, 1))
sketch5.addConstraint(Sketcher.Constraint("Coincident", 5, 2, 6, 1))
sketch5.addConstraint(Sketcher.Constraint("Coincident", 6, 2, 7, 1))
sketch5.addConstraint(Sketcher.Constraint("Coincident", 7, 2, 4, 1))
sketch5.addConstraint(Sketcher.Constraint("Symmetric", 3, 2, 4, 2, -2))
sketch5.addConstraint(Sketcher.Constraint("Symmetric", 2, 2, 5, 2, -2))
sketch5.addConstraint(Sketcher.Constraint("Symmetric", 1, 2, 6, 2, -2))
sketch5.addConstraint(Sketcher.Constraint("Symmetric", 0, 2, 7, 2, -2))
sketch5.addConstraint(Sketcher.Constraint("Perpendicular", 0, 1))
sketch5.addConstraint(Sketcher.Constraint("Perpendicular", 1, 2))
sketch5.addConstraint(Sketcher.Constraint("Perpendicular", 2, 3))
sketch5.addConstraint(Sketcher.Constraint("Angle", 0, Q("-120 deg")))
sketch5.addConstraint(Sketcher.Constraint("Distance", 0, Q("12 mm")))
sketch5.addConstraint(Sketcher.Constraint("Distance", 1, Q("0.1 mm")))
sketch5.addConstraint(Sketcher.Constraint("DistanceX", 3, 2, 4, 2, Q("14.78461 mm")))
sketch5.addConstraint(Sketcher.Constraint("DistanceY", -1, 1, 0, 2, Q("0.803848 mm")))
pocket3 = body.newObject("PartDesign::Pocket", "Pocket002")
pocket3.Profile = sketch5
pocket3.Length = 5

sketch6 = body.newObject("Sketcher::SketchObject", "Sketch005")
sketch6.AttachmentSupport = (doc.getObject("XY_Plane"), [""])
sketch6.MapMode = "FlatFace"
sketch6.AttachmentOffset = App.Placement(Vector(0, 0, -12), App.Rotation())
sketch6.addGeometry(Part.LineSegment(Vector(15.1, 14.1, 0), Vector(15.1, -0.1, 0)), False)
sketch6.addGeometry(Part.LineSegment(Vector(15.1, -0.1, 0), Vector(-15.1, -0.1, 0)), False)
sketch6.addGeometry(Part.LineSegment(Vector(-15.1, -0.1, 0), Vector(-15.1, 14.1, 0)), False)
sketch6.addGeometry(Part.LineSegment(Vector(-15.1, 14.1, 0), Vector(-0.95, 14.1, 0)), False)
sketch6.addGeometry(Part.LineSegment(Vector(-0.95, 14.1, 0), Vector(-0.95, 23.1, 0)), False)
sketch6.addGeometry(Part.LineSegment(Vector(-0.95, 23.1, 0), Vector(0.95, 23.1, 0)), False)
sketch6.addGeometry(Part.LineSegment(Vector(0.95, 23.1, 0), Vector(0.95, 14.1, 0)), False)
sketch6.addGeometry(Part.LineSegment(Vector(0.95, 14.1, 0), Vector(15.1, 14.1, 0)), False)
sketch6.addGeometry(Part.Circle(Vector(11, 3, 0), Vector(0, 0, 1), 1.5), False)
sketch6.addGeometry(Part.Circle(Vector(-11, 3, 0), Vector(0, 0, 1), 1.5), False)
sketch6.addGeometry(Part.Circle(Vector(11, 11, 0), Vector(0, 0, 1), 1.5), False)
sketch6.addGeometry(Part.Circle(Vector(-11, 11, 0), Vector(0, 0, 1), 1.5), False)
sketch6.addConstraint(Sketcher.Constraint("Coincident", 0, 2, 1, 1))
sketch6.addConstraint(Sketcher.Constraint("Coincident", 1, 2, 2, 1))
sketch6.addConstraint(Sketcher.Constraint("Coincident", 2, 2, 3, 1))
sketch6.addConstraint(Sketcher.Constraint("Coincident", 3, 2, 4, 1))
sketch6.addConstraint(Sketcher.Constraint("Coincident", 4, 2, 5, 1))
sketch6.addConstraint(Sketcher.Constraint("Coincident", 5, 2, 6, 1))
sketch6.addConstraint(Sketcher.Constraint("Coincident", 6, 2, 7, 1))
sketch6.addConstraint(Sketcher.Constraint("Coincident", 7, 2, 0, 1))
sketch6.addConstraint(Sketcher.Constraint("Vertical", 0))
sketch6.addConstraint(Sketcher.Constraint("Horizontal", 1))
sketch6.addConstraint(Sketcher.Constraint("Vertical", 2))
sketch6.addConstraint(Sketcher.Constraint("Horizontal", 3))
sketch6.addConstraint(Sketcher.Constraint("Vertical", 4))
sketch6.addConstraint(Sketcher.Constraint("Horizontal", 5))
sketch6.addConstraint(Sketcher.Constraint("Vertical", 6))
sketch6.addConstraint(Sketcher.Constraint("Horizontal", 7))
sketch6.addConstraint(Sketcher.Constraint("Equal", 8, 9))
sketch6.addConstraint(Sketcher.Constraint("Equal", 9, 10))
sketch6.addConstraint(Sketcher.Constraint("Equal", 10, 11))
sketch6.addConstraint(Sketcher.Constraint("Symmetric", 8, 3, 9, 3, -2))
sketch6.addConstraint(Sketcher.Constraint("Symmetric", 10, 3, 11, 3, -2))
sketch6.addConstraint(Sketcher.Constraint("Symmetric", 3, 2, 6, 2, -2))
sketch6.addConstraint(Sketcher.Constraint("Vertical", 8, 3, 10, 3))
sketch6.addConstraint(Sketcher.Constraint("Equal", 3, 7))
sketch6.addConstraint(Sketcher.Constraint("Diameter", 8, Q("3 mm")))
sketch6.addConstraint(Sketcher.Constraint("DistanceY", 4, 1, 4, 2, Q("9 mm")))
sketch6.addConstraint(Sketcher.Constraint("DistanceX", 1, 2, 1, 1, Q("30.2 mm")))
sketch6.addConstraint(Sketcher.Constraint("DistanceX", 5, 1, 5, 2, Q("1.9 mm")))
sketch6.addConstraint(Sketcher.Constraint("DistanceY", 0, 2, 0, 1, Q("14.2 mm")))
sketch6.addConstraint(Sketcher.Constraint("DistanceX", -1, 1, 8, 3, Q("11 mm")))
sketch6.addConstraint(Sketcher.Constraint("DistanceY", -1, 1, 8, 3, Q("3 mm")))
sketch6.addConstraint(Sketcher.Constraint("DistanceY", -1, 1, 10, 3, Q("11 mm")))
sketch6.addConstraint(Sketcher.Constraint("DistanceY", 0, 2, -1, 1, Q("0.1 mm")))
pocket4 = body.newObject("PartDesign::Pocket", "Pocket003")
pocket4.Profile = sketch6
pocket4.Length = 3
pocket4.Reversed = True
doc.recompute()

fillet2 = body.newObject("PartDesign::Fillet", "Fillet001")
fillet2.Base = (pocket4, edges_at(pocket4, [(-15.1, 14.1, -10.413), (15.1, 14.1, -10.413)]))
fillet2.Radius = 3

doc.recompute()
